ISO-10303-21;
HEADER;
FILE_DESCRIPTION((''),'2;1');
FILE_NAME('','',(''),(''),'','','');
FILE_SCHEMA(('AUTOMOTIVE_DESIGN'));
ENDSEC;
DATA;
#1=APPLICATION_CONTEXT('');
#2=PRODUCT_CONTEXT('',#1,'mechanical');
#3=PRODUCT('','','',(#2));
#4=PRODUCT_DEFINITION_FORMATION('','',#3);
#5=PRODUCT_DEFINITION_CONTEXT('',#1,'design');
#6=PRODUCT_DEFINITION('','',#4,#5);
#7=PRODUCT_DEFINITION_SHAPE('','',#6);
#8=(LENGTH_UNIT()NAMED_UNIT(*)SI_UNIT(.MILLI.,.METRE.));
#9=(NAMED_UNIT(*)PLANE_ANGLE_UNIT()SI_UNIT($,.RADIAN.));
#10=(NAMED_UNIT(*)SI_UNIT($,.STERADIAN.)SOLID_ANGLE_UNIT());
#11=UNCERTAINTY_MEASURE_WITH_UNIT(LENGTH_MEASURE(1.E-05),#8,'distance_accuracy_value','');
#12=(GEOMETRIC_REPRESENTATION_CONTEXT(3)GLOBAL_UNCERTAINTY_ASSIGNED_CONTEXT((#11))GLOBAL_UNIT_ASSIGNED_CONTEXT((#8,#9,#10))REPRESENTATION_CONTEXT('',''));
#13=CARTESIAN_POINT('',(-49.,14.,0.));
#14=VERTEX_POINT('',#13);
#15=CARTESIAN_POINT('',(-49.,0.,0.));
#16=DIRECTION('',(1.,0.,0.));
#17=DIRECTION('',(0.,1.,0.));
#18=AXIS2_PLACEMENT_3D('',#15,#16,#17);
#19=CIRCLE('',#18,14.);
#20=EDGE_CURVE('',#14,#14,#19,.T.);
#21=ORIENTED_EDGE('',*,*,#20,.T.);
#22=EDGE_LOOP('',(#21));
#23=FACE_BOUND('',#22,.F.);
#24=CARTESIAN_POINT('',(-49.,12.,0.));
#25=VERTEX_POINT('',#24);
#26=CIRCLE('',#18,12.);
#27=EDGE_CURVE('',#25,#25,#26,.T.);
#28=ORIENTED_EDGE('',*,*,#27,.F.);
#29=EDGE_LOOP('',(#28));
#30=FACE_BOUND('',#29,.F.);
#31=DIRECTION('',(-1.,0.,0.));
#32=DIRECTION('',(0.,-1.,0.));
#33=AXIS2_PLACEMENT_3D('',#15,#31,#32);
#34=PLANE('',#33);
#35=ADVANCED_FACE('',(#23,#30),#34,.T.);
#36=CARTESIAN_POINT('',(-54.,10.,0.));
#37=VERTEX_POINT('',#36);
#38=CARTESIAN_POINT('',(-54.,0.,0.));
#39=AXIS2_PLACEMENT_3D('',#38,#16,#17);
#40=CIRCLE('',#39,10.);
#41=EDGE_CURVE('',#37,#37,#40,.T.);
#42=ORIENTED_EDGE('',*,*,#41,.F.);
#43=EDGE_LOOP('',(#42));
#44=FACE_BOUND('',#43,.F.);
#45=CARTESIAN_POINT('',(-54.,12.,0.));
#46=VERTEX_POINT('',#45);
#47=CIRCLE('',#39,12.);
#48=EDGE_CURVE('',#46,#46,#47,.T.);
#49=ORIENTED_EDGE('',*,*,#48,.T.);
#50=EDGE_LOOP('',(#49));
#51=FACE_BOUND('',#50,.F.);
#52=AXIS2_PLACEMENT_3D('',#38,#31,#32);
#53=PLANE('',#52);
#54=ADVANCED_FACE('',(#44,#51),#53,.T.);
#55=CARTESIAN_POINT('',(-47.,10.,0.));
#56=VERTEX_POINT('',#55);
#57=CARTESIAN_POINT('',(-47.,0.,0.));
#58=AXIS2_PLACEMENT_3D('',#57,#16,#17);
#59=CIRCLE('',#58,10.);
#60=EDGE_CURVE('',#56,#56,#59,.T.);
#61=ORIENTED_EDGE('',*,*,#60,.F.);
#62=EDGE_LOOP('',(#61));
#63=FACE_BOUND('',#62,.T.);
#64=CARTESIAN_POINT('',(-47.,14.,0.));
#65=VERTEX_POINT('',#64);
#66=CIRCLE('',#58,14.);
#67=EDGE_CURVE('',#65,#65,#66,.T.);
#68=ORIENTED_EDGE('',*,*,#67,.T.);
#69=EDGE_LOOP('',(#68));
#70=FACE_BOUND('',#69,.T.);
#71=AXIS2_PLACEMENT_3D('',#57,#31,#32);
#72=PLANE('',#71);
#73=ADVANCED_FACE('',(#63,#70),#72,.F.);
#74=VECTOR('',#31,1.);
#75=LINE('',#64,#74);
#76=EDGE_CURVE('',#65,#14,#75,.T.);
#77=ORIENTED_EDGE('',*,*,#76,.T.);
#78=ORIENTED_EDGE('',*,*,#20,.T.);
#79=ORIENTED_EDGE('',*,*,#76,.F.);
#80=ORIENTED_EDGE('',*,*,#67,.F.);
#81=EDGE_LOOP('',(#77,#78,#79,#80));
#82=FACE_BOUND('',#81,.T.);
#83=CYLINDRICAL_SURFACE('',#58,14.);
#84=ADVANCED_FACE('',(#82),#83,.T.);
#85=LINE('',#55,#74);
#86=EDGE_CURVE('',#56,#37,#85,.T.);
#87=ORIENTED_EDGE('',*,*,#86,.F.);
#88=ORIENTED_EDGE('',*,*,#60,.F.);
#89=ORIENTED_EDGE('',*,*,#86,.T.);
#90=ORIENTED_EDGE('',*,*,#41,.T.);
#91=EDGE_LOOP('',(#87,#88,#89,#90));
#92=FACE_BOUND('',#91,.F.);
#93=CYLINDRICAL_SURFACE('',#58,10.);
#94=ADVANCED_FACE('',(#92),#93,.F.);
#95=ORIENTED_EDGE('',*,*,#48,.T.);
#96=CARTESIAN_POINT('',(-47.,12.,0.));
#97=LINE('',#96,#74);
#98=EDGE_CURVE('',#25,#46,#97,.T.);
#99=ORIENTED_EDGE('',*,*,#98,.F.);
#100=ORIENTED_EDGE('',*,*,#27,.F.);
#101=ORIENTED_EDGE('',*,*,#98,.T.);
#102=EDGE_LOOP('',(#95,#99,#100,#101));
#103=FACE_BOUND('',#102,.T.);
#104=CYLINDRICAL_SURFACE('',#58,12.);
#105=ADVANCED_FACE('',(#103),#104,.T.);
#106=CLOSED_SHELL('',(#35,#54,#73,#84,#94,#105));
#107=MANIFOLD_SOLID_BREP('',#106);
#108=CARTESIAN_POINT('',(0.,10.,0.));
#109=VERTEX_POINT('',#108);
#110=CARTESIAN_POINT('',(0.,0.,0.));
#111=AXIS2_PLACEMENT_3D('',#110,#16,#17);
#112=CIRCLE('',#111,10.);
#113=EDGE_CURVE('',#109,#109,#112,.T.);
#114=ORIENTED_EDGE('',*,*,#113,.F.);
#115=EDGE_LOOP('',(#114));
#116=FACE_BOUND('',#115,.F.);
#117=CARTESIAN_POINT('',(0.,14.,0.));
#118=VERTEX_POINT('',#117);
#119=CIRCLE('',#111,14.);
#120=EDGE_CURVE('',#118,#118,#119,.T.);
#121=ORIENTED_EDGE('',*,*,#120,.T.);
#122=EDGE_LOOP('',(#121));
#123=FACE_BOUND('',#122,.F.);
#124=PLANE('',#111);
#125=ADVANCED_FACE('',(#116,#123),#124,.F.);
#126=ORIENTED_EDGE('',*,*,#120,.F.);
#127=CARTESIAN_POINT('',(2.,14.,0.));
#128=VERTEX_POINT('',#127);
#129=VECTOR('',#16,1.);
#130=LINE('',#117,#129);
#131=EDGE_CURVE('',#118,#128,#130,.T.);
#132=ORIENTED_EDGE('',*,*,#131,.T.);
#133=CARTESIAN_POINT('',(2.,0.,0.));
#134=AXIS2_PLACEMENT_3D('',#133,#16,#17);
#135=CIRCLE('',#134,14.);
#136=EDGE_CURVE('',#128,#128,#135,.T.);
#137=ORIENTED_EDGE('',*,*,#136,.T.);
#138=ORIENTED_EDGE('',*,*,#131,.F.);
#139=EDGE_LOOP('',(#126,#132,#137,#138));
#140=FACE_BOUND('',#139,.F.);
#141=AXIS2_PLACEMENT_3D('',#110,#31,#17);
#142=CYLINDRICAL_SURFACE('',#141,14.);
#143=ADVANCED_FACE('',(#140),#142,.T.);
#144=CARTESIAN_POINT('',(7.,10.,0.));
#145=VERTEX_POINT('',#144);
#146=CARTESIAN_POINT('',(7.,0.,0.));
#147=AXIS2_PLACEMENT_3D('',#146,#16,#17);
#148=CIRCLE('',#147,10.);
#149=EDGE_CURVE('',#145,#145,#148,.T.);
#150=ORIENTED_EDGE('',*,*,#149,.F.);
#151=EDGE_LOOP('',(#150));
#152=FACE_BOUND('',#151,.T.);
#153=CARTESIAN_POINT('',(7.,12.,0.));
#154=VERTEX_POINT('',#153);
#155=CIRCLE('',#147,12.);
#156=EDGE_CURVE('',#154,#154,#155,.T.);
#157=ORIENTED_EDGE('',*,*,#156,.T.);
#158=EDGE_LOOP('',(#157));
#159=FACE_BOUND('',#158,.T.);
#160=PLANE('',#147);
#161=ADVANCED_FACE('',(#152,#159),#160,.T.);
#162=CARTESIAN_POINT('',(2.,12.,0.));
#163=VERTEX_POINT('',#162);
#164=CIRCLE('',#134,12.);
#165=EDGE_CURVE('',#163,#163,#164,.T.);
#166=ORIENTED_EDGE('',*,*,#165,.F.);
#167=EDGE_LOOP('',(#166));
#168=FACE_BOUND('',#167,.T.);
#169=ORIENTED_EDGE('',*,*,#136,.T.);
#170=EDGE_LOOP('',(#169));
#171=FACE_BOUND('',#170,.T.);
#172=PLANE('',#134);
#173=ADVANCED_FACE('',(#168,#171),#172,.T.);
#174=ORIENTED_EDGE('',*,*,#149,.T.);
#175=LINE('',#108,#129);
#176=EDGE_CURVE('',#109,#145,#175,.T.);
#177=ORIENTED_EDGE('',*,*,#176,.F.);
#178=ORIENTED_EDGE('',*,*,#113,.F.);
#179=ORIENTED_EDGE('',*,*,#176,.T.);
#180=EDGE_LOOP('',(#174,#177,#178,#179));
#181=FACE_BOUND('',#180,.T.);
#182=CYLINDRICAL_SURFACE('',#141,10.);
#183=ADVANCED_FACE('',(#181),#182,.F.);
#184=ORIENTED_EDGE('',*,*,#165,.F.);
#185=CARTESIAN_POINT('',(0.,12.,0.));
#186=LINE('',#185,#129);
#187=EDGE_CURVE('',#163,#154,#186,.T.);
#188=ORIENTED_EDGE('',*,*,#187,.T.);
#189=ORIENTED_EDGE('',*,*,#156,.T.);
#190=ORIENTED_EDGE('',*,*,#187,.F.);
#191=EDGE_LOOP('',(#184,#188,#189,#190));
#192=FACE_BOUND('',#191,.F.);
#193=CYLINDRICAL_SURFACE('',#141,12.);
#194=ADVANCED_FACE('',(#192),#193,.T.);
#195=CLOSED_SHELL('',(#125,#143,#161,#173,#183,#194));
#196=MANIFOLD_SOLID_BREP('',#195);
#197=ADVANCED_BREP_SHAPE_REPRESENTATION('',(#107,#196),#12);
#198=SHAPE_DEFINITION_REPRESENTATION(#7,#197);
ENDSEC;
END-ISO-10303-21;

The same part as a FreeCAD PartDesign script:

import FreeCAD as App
import Part
import Sketcher
Q = App.Units.Quantity

doc = App.newDocument("Part")
body = doc.addObject("PartDesign::Body", "Body")

# Sketch on YZ plane
sketch1 = doc.addObject("Sketcher::SketchObject", "Sketch")
body.addObject(sketch1)
sketch1.AttachmentSupport = (doc.YZ_Plane, [""])
sketch1.MapMode = "FlatFace"
sketch1.addGeometry(Part.Circle(App.Vector(0, 0, 0), App.Vector(0, 0, 1), 12), False)
sketch1.addGeometry(Part.Circle(App.Vector(0, 0, 0), App.Vector(0, 0, 1), 10), False)
sketch1.addConstraint(Sketcher.Constraint("Coincident", 0, 3, -1, 1))
sketch1.addConstraint(Sketcher.Constraint("Coincident", 1, 3, -1, 1))
sketch1.addConstraint(Sketcher.Constraint("Diameter", 0, Q("24 mm")))
sketch1.addConstraint(Sketcher.Constraint("Diameter", 1, Q("20 mm")))
pad1 = doc.addObject("PartDesign::Pad", "Pad")
body.addObject(pad1)
pad1.Profile = sketch1
pad1.Length = 7

# Sketch on YZ plane
sketch2 = doc.addObject("Sketcher::SketchObject", "Sketch001")
body.addObject(sketch2)
sketch2.AttachmentSupport = (doc.YZ_Plane, [""])
sketch2.MapMode = "FlatFace"
sketch2.addGeometry(Part.Circle(App.Vector(0, 0, 0), App.Vector(0, 0, 1), 14), False)
sketch2.addGeometry(Part.Circle(App.Vector(0, 0, 0), App.Vector(0, 0, 1), 12), False)
sketch2.addConstraint(Sketcher.Constraint("Coincident", 0, 3, -1, 1))
sketch2.addConstraint(Sketcher.Constraint("Coincident", 1, 3, -1, 1))
sketch2.addConstraint(Sketcher.Constraint("Diameter", 0, Q("28 mm")))
sketch2.addConstraint(Sketcher.Constraint("Diameter", 1, Q("24 mm")))
pad2 = doc.addObject("PartDesign::Pad", "Pad001")
body.addObject(pad2)
pad2.Profile = sketch2
pad2.Length = 2
body2 = doc.addObject("PartDesign::Body", "Body001")
doc.recompute()

mirroring = doc.addObject("Part::Mirroring", "Mirroring")
mirroring.Source = body
mirroring.Base = App.Vector(-23.5, 0, 0)
mirroring.Normal = App.Vector(1, 0, 0)
body2.BaseFeature = mirroring
doc.recompute()
mirroring.Visibility = False

doc.recompute()
